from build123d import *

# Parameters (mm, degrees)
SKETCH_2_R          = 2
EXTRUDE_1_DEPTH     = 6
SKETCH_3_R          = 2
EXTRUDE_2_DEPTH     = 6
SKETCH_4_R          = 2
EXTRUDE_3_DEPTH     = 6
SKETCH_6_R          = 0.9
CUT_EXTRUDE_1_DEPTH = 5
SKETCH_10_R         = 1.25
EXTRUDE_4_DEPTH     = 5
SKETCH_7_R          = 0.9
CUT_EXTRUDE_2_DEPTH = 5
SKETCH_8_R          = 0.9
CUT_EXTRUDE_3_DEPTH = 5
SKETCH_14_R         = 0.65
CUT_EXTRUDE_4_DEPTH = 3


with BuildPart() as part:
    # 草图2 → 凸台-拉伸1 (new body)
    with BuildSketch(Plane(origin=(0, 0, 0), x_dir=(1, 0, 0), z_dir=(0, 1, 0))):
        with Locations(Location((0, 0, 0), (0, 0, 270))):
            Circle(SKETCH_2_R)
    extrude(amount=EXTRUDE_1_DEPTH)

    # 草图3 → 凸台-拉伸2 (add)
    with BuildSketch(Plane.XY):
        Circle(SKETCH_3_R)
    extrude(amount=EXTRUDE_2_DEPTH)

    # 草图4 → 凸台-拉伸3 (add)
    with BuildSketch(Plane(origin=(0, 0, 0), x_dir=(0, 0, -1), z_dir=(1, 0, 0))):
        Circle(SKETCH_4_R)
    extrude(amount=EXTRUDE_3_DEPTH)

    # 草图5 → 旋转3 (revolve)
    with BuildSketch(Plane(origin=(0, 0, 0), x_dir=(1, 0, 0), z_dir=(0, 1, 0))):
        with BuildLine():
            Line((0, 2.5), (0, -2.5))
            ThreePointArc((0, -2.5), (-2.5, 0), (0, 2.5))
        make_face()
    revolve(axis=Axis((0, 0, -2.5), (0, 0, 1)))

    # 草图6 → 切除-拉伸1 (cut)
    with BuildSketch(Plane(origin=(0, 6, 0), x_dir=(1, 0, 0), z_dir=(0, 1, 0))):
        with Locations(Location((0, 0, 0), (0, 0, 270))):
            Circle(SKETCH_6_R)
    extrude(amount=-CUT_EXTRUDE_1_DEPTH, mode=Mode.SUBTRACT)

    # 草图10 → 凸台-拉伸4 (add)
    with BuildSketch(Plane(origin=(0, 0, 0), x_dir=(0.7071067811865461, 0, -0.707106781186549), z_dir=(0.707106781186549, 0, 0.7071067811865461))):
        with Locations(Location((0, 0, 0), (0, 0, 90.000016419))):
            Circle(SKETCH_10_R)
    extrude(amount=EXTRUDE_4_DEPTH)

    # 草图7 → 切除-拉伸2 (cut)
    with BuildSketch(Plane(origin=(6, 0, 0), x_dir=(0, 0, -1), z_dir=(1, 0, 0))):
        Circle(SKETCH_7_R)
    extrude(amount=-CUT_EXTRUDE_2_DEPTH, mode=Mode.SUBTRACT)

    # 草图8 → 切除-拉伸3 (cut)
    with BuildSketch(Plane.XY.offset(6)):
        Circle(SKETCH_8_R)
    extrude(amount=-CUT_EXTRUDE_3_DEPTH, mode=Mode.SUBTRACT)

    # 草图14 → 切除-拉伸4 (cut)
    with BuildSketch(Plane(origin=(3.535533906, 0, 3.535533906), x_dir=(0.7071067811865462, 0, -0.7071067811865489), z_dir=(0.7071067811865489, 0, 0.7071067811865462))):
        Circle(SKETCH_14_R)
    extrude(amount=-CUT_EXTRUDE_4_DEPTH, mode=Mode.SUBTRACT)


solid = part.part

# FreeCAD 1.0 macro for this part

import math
import FreeCAD as App
import Part
import Sketcher
Q = App.Units.Quantity

doc = App.newDocument("Part")
params = doc.addObject("Spreadsheet::Sheet", "Params")
for row, (alias, value) in enumerate([
    ("sketch1_diameter", "4 mm"),
    ("pad1_length", "6 mm"),
    ("sketch2_diameter", "4 mm"),
    ("pad2_length", "6 mm"),
    ("sketch3_diameter", "4 mm"),
    ("pad3_length", "6 mm"),
    ("sketch4_radius", "2.5 mm"),
    ("revolution_angle", "360 deg"),
    ("sketch5_diameter", "1.8 mm"),
    ("pocket1_length", "5 mm"),
    ("sketch6_diameter", "2.5 mm"),
    ("pad4_length", "5 mm"),
    ("sketch7_diameter", "1.8 mm"),
    ("pocket2_length", "5 mm"),
    ("sketch8_diameter", "1.8 mm"),
    ("pocket3_length", "5 mm"),
    ("sketch9_diameter", "1.3 mm"),
    ("pocket4_length", "3 mm"),
], start=1):
    params.set(f"A{row}", alias)
    params.set(f"B{row}", "=" + value)
    params.setAlias(f"B{row}", alias)

body = doc.addObject("PartDesign::Body", "Body")

sketch1 = body.newObject("Sketcher::SketchObject", "Sketch")
sketch1.AttachmentSupport = (doc.getObject("XZ_Plane"), [""])
sketch1.MapMode = "FlatFace"
sketch1.addGeometry(Part.Circle(App.Vector(0, 0, 0), App.Vector(0, 0, 1), 2), False)
sketch1.addConstraint([
    Sketcher.Constraint("Coincident", 0, 3, -1, 1),
    Sketcher.Constraint("Diameter", 0, Q("4 mm")),
])
sketch1.setExpression("Constraints[1]", "Params.sketch1_diameter")
pad1 = body.newObject("PartDesign::Pad", "Pad")
pad1.Profile = sketch1
pad1.setExpression("Length", "Params.pad1_length")
pad1.Reversed = True

sketch2 = body.newObject("Sketcher::SketchObject", "Sketch001")
sketch2.AttachmentSupport = (doc.getObject("XY_Plane"), [""])
sketch2.MapMode = "FlatFace"
sketch2.addGeometry(Part.Circle(App.Vector(0, 0, 0), App.Vector(0, 0, 1), 2), False)
sketch2.addConstraint([
    Sketcher.Constraint("Coincident", 0, 3, -1, 1),
    Sketcher.Constraint("Diameter", 0, Q("4 mm")),
])
sketch2.setExpression("Constraints[1]", "Params.sketch2_diameter")
pad2 = body.newObject("PartDesign::Pad", "Pad001")
pad2.Profile = sketch2
pad2.setExpression("Length", "Params.pad2_length")

sketch3 = body.newObject("Sketcher::SketchObject", "Sketch002")
sketch3.AttachmentSupport = (doc.getObject("YZ_Plane"), [""])
sketch3.MapMode = "FlatFace"
sketch3.addGeometry(Part.Circle(App.Vector(0, 0, 0), App.Vector(0, 0, 1), 2), False)
sketch3.addConstraint([
    Sketcher.Constraint("Coincident", 0, 3, -1, 1),
    Sketcher.Constraint("Diameter", 0, Q("4 mm")),
])
sketch3.setExpression("Constraints[1]", "Params.sketch3_diameter")
pad3 = body.newObject("PartDesign::Pad", "Pad002")
pad3.Profile = sketch3
pad3.setExpression("Length", "Params.pad3_length")

sketch4 = body.newObject("Sketcher::SketchObject", "Sketch003")
sketch4.AttachmentSupport = (doc.getObject("XZ_Plane"), [""])
sketch4.MapMode = "FlatFace"
sketch4.addGeometry([
    Part.LineSegment(App.Vector(0, 2.5, 0), App.Vector(0, -2.5, 0)),
    Part.ArcOfCircle(Part.Circle(App.Vector(0, 0, 0), App.Vector(0, 0, 1), 2.5), math.radians(90), math.radians(270)),
], False)
sketch4.addConstraint([
    Sketcher.Constraint("Coincident", 0, 1, 1, 1),
    Sketcher.Constraint("Coincident", 1, 2, 0, 2),
    Sketcher.Constraint("Vertical", 0),
    Sketcher.Constraint("Coincident", 1, 3, -1, 1),
    Sketcher.Constraint("PointOnObject", 0, 1, -2),
    Sketcher.Constraint("Radius", 1, Q("2.5 mm")),
])
sketch4.setExpression("Constraints[5]", "Params.sketch4_radius")
revolution = body.newObject("PartDesign::Revolution", "Revolution")
revolution.Profile = sketch4
revolution.ReferenceAxis = (sketch4, ["V_Axis"])
revolution.setExpression("Angle", "Params.revolution_angle")

sketch5 = body.newObject("Sketcher::SketchObject", "Sketch004")
sketch5.AttachmentSupport = (doc.getObject("XZ_Plane"), [""])
sketch5.MapMode = "FlatFace"
sketch5.AttachmentOffset = App.Placement(App.Vector(0, 0, -6), App.Rotation())
sketch5.addGeometry(Part.Circle(App.Vector(0, 0, 0), App.Vector(0, 0, 1), 0.9), False)
sketch5.addConstraint([
    Sketcher.Constraint("Coincident", 0, 3, -1, 1),
    Sketcher.Constraint("Diameter", 0, Q("1.8 mm")),
])
sketch5.setExpression("Constraints[1]", "Params.sketch5_diameter")
pocket1 = body.newObject("PartDesign::Pocket", "Pocket")
pocket1.Profile = sketch5
pocket1.setExpression("Length", "Params.pocket1_length")
pocket1.Reversed = True

sketch6 = body.newObject("Sketcher::SketchObject", "Sketch005")
sketch6.Placement = App.Placement(App.Vector(0, 0, 0), App.Rotation(App.Vector(0.707106781, 0, -0.707106781), App.Vector(0, 0.999999999, 0), App.Vector(0.707106781, 0, 0.707106781), "ZXY"))
sketch6.addGeometry(Part.Circle(App.Vector(0, 0, 0), App.Vector(0, 0, 1), 1.2), False)
sketch6.addConstraint([
    Sketcher.Constraint("Coincident", 0, 3, -1, 1),
    Sketcher.Constraint("Diameter", 0, Q("2.5 mm")),
])
sketch6.setExpression("Constraints[1]", "Params.sketch6_diameter")
pad4 = body.newObject("PartDesign::Pad", "Pad003")
pad4.Profile = sketch6
pad4.setExpression("Length", "Params.pad4_length")

sketch7 = body.newObject("Sketcher::SketchObject", "Sketch006")
sketch7.AttachmentSupport = (doc.getObject("YZ_Plane"), [""])
sketch7.MapMode = "FlatFace"
sketch7.AttachmentOffset = App.Placement(App.Vector(0, 0, 6), App.Rotation())
sketch7.addGeometry(Part.Circle(App.Vector(0, 0, 0), App.Vector(0, 0, 1), 0.9), False)
sketch7.addConstraint([
    Sketcher.Constraint("Coincident", 0, 3, -1, 1),
    Sketcher.Constraint("Diameter", 0, Q("1.8 mm")),
])
sketch7.setExpression("Constraints[1]", "Params.sketch7_diameter")
pocket2 = body.newObject("PartDesign::Pocket", "Pocket001")
pocket2.Profile = sketch7
pocket2.setExpression("Length", "Params.pocket2_length")

sketch8 = body.newObject("Sketcher::SketchObject", "Sketch007")
sketch8.AttachmentSupport = (doc.getObject("XY_Plane"), [""])
sketch8.MapMode = "FlatFace"
sketch8.AttachmentOffset = App.Placement(App.Vector(0, 0, 6), App.Rotation())
sketch8.addGeometry(Part.Circle(App.Vector(0, 0, 0), App.Vector(0, 0, 1), 0.9), False)
sketch8.addConstraint([
    Sketcher.Constraint("Coincident", 0, 3, -1, 1),
    Sketcher.Constraint("Diameter", 0, Q("1.8 mm")),
])
sketch8.setExpression("Constraints[1]", "Params.sketch8_diameter")
pocket3 = body.newObject("PartDesign::Pocket", "Pocket002")
pocket3.Profile = sketch8
pocket3.setExpression("Length", "Params.pocket3_length")

sketch9 = body.newObject("Sketcher::SketchObject", "Sketch008")
sketch9.Placement = App.Placement(App.Vector(3.535534, 0, 3.535534), App.Rotation(App.Vector(0.707106781, 0, -0.707106781), App.Vector(0, 0.999999999, 0), App.Vector(0.707106781, 0, 0.707106781), "ZXY"))
sketch9.addGeometry(Part.Circle(App.Vector(0, 0, 0), App.Vector(0, 0, 1), 0.7), False)
sketch9.addConstraint([
    Sketcher.Constraint("Coincident", 0, 3, -1, 1),
    Sketcher.Constraint("Diameter", 0, Q("1.3 mm")),
])
sketch9.setExpression("Constraints[1]", "Params.sketch9_diameter")
pocket4 = body.newObject("PartDesign::Pocket", "Pocket003")
pocket4.Profile = sketch9
pocket4.setExpression("Length", "Params.pocket4_length")

doc.recompute()
